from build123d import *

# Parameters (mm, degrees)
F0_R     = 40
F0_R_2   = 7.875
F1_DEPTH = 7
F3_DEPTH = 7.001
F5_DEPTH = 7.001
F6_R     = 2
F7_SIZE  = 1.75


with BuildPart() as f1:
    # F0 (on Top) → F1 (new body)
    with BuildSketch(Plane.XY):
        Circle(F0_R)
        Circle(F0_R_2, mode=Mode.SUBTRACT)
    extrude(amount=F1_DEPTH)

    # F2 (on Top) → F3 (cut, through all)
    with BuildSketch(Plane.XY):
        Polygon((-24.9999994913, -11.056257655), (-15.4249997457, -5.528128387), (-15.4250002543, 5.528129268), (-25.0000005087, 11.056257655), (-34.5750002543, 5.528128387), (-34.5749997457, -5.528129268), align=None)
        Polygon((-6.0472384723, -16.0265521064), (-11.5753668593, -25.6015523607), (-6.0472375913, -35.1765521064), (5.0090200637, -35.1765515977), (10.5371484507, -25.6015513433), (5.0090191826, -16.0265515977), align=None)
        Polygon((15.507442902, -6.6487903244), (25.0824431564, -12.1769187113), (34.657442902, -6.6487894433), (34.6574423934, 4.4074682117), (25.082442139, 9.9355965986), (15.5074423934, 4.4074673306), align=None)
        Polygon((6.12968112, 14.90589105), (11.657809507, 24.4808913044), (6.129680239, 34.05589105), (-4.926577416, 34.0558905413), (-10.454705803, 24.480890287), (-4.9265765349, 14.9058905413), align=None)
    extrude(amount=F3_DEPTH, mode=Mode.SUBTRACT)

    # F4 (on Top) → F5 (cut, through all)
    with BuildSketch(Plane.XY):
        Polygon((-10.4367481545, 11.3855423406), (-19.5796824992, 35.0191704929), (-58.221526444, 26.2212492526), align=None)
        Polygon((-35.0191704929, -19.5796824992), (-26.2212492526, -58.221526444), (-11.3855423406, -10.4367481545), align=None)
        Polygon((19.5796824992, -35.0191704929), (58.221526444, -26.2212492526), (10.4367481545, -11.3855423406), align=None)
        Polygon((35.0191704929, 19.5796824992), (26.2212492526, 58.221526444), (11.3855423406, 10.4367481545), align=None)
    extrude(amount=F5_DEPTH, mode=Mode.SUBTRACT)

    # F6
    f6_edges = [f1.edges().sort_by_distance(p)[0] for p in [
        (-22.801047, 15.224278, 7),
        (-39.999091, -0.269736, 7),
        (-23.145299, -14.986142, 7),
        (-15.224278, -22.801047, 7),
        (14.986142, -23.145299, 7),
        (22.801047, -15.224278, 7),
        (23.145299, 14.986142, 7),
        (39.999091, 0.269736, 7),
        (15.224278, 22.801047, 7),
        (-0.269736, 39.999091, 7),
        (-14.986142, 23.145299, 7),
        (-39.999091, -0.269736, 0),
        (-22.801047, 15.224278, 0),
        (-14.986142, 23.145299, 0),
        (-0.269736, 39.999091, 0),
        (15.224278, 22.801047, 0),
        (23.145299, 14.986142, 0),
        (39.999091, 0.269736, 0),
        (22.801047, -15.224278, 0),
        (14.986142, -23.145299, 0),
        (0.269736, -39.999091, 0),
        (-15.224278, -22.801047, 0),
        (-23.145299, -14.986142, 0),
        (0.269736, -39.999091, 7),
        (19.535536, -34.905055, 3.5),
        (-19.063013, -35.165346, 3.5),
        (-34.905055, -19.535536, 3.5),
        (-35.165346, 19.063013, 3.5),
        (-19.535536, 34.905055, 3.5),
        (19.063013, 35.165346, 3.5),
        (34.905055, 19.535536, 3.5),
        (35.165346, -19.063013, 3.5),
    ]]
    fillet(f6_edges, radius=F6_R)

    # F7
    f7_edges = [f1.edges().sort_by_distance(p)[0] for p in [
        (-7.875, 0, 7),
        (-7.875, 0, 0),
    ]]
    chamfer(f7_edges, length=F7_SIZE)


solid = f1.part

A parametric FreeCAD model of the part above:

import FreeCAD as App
import Part
import Sketcher
from FreeCAD import Vector
Q = App.Units.Quantity


def edges_at(feature, points):
    """Names of the edges that pass closest to the given points."""
    edges = feature.Shape.Edges
    near = lambda p: min(range(len(edges)), key=lambda i: edges[i].distToShape(Part.Vertex(*p))[0])
    return sorted({f"Edge{near(p) + 1}" for p in points})


def add_polygon(sketch, points):
    """Adds a closed chain of lines whose ends are joined by coincident constraints."""
    first, n = sketch.GeometryCount, len(points)
    for a, b in zip(points, points[1:] + points[:1]):
        sketch.addGeometry(Part.LineSegment(App.Vector(*a, 0), App.Vector(*b, 0)), False)
    for i in range(n):
        sketch.addConstraint(Sketcher.Constraint("Coincident", first + i, 2, first + (i + 1) % n, 1))

doc = App.newDocument("Part")
body = doc.addObject("PartDesign::Body", "Body")

sketch1 = body.newObject("Sketcher::SketchObject", "Sketch")
sketch1.AttachmentSupport = (doc.getObject("XY_Plane"), [""])
sketch1.MapMode = "FlatFace"
sketch1.addGeometry([
    Part.Circle(Vector(0, 0, 0), Vector(0, 0, 1), 40),
    Part.Circle(Vector(0, 0, 0), Vector(0, 0, 1), 8),
], False)
sketch1.addConstraint([
    Sketcher.Constraint("Coincident", 0, 3, -1, 1),
    Sketcher.Constraint("Coincident", 1, 3, -1, 1),
    Sketcher.Constraint("Diameter", 0, 80.0),
    Sketcher.Constraint("Diameter", 1, 15.75),
])
pad1 = body.newObject("PartDesign::Pad", "Pad")
pad1.Profile = sketch1
pad1.Length = 7

sketch2 = body.newObject("Sketcher::SketchObject", "Sketch001")
sketch2.AttachmentSupport = (doc.getObject("XY_Plane"), [""])
sketch2.MapMode = "FlatFace"
add_polygon(sketch2, [(-25, -11), (-15, -6), (-15, 6), (-25, 11), (-35, 6), (-35, -6)])
add_polygon(sketch2, [(-6, -16), (-12, -26), (-6, -35), (5, -35), (11, -26), (5, -16)])
add_polygon(sketch2, [(16, -7), (25, -12), (35, -7), (35, 4), (25, 10), (16, 4)])
add_polygon(sketch2, [(6, 15), (12, 24), (6, 34), (-5, 34), (-10, 24), (-5, 15)])
sketch2.addConstraint([
    Sketcher.Constraint("Vertical", 1),
    Sketcher.Constraint("Vertical", 4),
    Sketcher.Constraint("Horizontal", 8),
    Sketcher.Constraint("Horizontal", 11),
    Sketcher.Constraint("Vertical", 14),
    Sketcher.Constraint("Vertical", 17),
    Sketcher.Constraint("Horizontal", 20),
    Sketcher.Constraint("Horizontal", 23),
    Sketcher.Constraint("Symmetric", 2, 2, 5, 2, -1),
    Sketcher.Constraint("Parallel", 0, 3),
    Sketcher.Constraint("Parallel", 2, 5),
    Sketcher.Constraint("Perpendicular", 5, 6),
    Sketcher.Constraint("Perpendicular", 3, 7),
    Sketcher.Constraint("Parallel", 6, 9),
    Sketcher.Constraint("Parallel", 7, 10),
    Sketcher.Constraint("Perpendicular", 9, 12),
    Sketcher.Constraint("Perpendicular", 10, 13),
    Sketcher.Constraint("Parallel", 12, 15),
    Sketcher.Constraint("Parallel", 13, 16),
    Sketcher.Constraint("Perpendicular", 15, 18),
    Sketcher.Constraint("Perpendicular", 16, 19),
    Sketcher.Constraint("Parallel", 18, 21),
    Sketcher.Constraint("Parallel", 19, 22),
    Sketcher.Constraint("Horizontal", 1, 2, 3, 2),
    Sketcher.Constraint("Horizontal", 0, 2, 4, 2),
    Sketcher.Constraint("Horizontal", 6, 2, 9, 2),
    Sketcher.Constraint("Horizontal", 14, 2, 16, 2),
    Sketcher.Constraint("Horizontal", 13, 2, 17, 2),
    Sketcher.Constraint("Horizontal", 18, 2, 21, 2),
    Sketcher.Constraint("Vertical", 8, 2, 10, 2),
    Sketcher.Constraint("Vertical", 20, 2, 22, 2),
    Sketcher.Constraint("Equal", 11, 20),
    Sketcher.Constraint("Equal", 23, 1),
    Sketcher.Constraint("Equal", 4, 14),
    Sketcher.Constraint("Equal", 5, 6),
    Sketcher.Constraint("Equal", 10, 12),
    Sketcher.Constraint("Equal", 16, 18),
    Sketcher.Constraint("Angle", 0, Q("30.000003 deg")),
    Sketcher.Constraint("DistanceX", 2, 2, -1, 1, 25.000001),
    Sketcher.Constraint("DistanceX", 3, 2, 1, 2, 19.15),
    Sketcher.Constraint("DistanceX", 8, 1, 8, 2, 11.056258),
    Sketcher.Constraint("DistanceX", -1, 1, 8, 2, 5.00902),
    Sketcher.Constraint("DistanceY", 8, 2, -1, 1, 35.176552),
    Sketcher.Constraint("DistanceY", 12, 2, -1, 1, 12.176919),
    Sketcher.Constraint("DistanceX", -1, 1, 18, 2, 11.65781),
    Sketcher.Constraint("DistanceY", -1, 1, 18, 2, 24.480891),
    Sketcher.Constraint("DistanceX", 11, 2, 12, 2, 31.129682),
])
pocket1 = body.newObject("PartDesign::Pocket", "Pocket")
pocket1.Profile = sketch2
pocket1.Type = "ThroughAll"
pocket1.Reversed = True

sketch3 = body.newObject("Sketcher::SketchObject", "Sketch002")
sketch3.AttachmentSupport = (doc.getObject("XY_Plane"), [""])
sketch3.MapMode = "FlatFace"
add_polygon(sketch3, [(-10, 11), (-20, 35), (-58, 26)])
add_polygon(sketch3, [(-35, -20), (-26, -58), (-11, -10)])
add_polygon(sketch3, [(20, -35), (58, -26), (10, -11)])
add_polygon(sketch3, [(35, 20), (26, 58), (11, 10)])
sketch3.addConstraint([
    Sketcher.Constraint("Symmetric", 1, 2, 6, 2, -1, 1),
    Sketcher.Constraint("Symmetric", 2, 2, 7, 2, -1, 1),
    Sketcher.Constraint("Symmetric", 0, 2, 8, 2, -1, 1),
    Sketcher.Constraint("Symmetric", 3, 2, 9, 2, -1, 1),
    Sketcher.Constraint("Symmetric", 4, 2, 10, 2, -1, 1),
    Sketcher.Constraint("Symmetric", 5, 2, 11, 2, -1, 1),
    Sketcher.Constraint("Perpendicular", 1, 3),
    Sketcher.Constraint("Perpendicular", 2, 4),
    Sketcher.Constraint("Perpendicular", 0, 5),
    Sketcher.Constraint("Equal", 1, 3),
    Sketcher.Constraint("DistanceX", 3, 2, 2, 2, 15.784501),
    Sketcher.Constraint("DistanceY", 6, 2, 4, 2, 15.784501),
    Sketcher.Constraint("Distance", 1, 39.63074),
    Sketcher.Constraint("Distance", 2, 50.03482),
    Sketcher.Constraint("DistanceY", -1, 1, 0, 2, 35.01917),
    Sketcher.Constraint("DistanceY", -1, 1, 1, 2, 26.221249),
    Sketcher.Constraint("DistanceX", 2, 2, -1, 1, 10.436748),
    Sketcher.Constraint("DistanceY", 2, 2, 0, 2, 23.633628),
])
pocket2 = body.newObject("PartDesign::Pocket", "Pocket001")
pocket2.Profile = sketch3
pocket2.Type = "ThroughAll"
pocket2.Reversed = True
doc.recompute()

fillet = body.newObject("PartDesign::Fillet", "Fillet")
fillet.Base = (pocket2, edges_at(pocket2, [
    (-22.801, 15.224, 7),
    (-39.999, -0.27, 7),
    (-23.145, -14.986, 7),
    (-15.224, -22.801, 7),
    (14.986, -23.145, 7),
    (22.801, -15.224, 7),
    (23.145, 14.986, 7),
    (39.999, 0.27, 7),
    (15.224, 22.801, 7),
    (-0.27, 39.999, 7),
    (-14.986, 23.145, 7),
    (-39.999, -0.27, 0),
    (-22.801, 15.224, 0),
    (-14.986, 23.145, 0),
    (-0.27, 39.999, 0),
    (15.224, 22.801, 0),
    (23.145, 14.986, 0),
    (39.999, 0.27, 0),
    (22.801, -15.224, 0),
    (14.986, -23.145, 0),
    (0.27, -39.999, 0),
    (-15.224, -22.801, 0),
    (-23.145, -14.986, 0),
    (0.27, -39.999, 7),
    (19.536, -34.905, 3.5),
    (-19.063, -35.165, 3.5),
    (-34.905, -19.536, 3.5),
    (-35.165, 19.063, 3.5),
    (-19.536, 34.905, 3.5),
    (19.063, 35.165, 3.5),
    (34.905, 19.536, 3.5),
    (35.165, -19.063, 3.5),
]))
fillet.Radius = 2
doc.recompute()

chamfer = body.newObject("PartDesign::Chamfer", "Chamfer")
chamfer.Base = (fillet, edges_at(fillet, [(-7.875, 0, 7), (-7.875, 0, 0)]))
chamfer.Size = 1.75

doc.recompute()
